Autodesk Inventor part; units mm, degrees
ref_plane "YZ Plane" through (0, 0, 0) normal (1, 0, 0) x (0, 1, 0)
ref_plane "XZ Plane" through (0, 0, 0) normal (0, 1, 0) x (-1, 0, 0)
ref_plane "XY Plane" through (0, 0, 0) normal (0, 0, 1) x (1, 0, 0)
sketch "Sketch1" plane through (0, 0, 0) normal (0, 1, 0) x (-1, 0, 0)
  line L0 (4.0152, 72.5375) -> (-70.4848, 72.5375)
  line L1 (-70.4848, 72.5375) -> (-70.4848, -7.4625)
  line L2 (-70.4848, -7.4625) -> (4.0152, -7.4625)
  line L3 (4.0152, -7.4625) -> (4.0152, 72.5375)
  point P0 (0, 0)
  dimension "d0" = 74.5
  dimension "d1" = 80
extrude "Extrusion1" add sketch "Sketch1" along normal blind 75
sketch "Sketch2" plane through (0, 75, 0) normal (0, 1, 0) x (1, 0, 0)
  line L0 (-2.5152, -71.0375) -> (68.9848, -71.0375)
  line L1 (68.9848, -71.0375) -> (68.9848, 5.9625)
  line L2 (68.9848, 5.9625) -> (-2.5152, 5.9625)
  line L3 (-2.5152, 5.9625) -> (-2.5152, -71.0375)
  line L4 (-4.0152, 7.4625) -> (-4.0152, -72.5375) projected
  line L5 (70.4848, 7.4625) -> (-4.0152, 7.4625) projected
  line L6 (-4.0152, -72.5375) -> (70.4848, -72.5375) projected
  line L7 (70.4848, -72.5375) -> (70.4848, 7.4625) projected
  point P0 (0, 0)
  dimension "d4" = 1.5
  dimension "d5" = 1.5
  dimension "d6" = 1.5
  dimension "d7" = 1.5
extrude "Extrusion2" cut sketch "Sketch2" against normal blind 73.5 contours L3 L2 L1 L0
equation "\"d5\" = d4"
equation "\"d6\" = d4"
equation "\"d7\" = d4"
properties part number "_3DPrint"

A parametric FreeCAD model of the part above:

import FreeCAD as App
import Part
import Sketcher
from FreeCAD import Vector
Q = App.Units.Quantity

doc = App.newDocument("Part")
body = doc.addObject("PartDesign::Body", "Body")

# Sketch on XZ plane
sketch1 = body.newObject("Sketcher::SketchObject", "Sketch")
sketch1.AttachmentSupport = (doc.getObject("XZ_Plane"), [""])
sketch1.MapMode = "FlatFace"
sketch1.addGeometry(Part.LineSegment(Vector(-4.0152, -7.4625, 0), Vector(-4.0152, 72.5375, 0)), False)
sketch1.addGeometry(Part.LineSegment(Vector(-4.0152, 72.5375, 0), Vector(70.4848, 72.5375, 0)), False)
sketch1.addGeometry(Part.LineSegment(Vector(70.4848, 72.5375, 0), Vector(70.4848, -7.4625, 0)), False)
sketch1.addGeometry(Part.LineSegment(Vector(70.4848, -7.4625, 0), Vector(-4.0152, -7.4625, 0)), False)
sketch1.addConstraint(Sketcher.Constraint("Coincident", 0, 2, 1, 1))
sketch1.addConstraint(Sketcher.Constraint("Coincident", 1, 2, 2, 1))
sketch1.addConstraint(Sketcher.Constraint("Coincident", 2, 2, 3, 1))
sketch1.addConstraint(Sketcher.Constraint("Coincident", 3, 2, 0, 1))
sketch1.addConstraint(Sketcher.Constraint("Vertical", 0))
sketch1.addConstraint(Sketcher.Constraint("Horizontal", 1))
sketch1.addConstraint(Sketcher.Constraint("Vertical", 2))
sketch1.addConstraint(Sketcher.Constraint("Horizontal", 3))
sketch1.addConstraint(Sketcher.Constraint("DistanceY", 0, 1, 0, 2, Q("80 mm")))
sketch1.addConstraint(Sketcher.Constraint("DistanceX", 1, 1, 1, 2, Q("74.5 mm")))
sketch1.addConstraint(Sketcher.Constraint("DistanceX", 0, 2, -1, 1, Q("4.0152 mm")))
sketch1.addConstraint(Sketcher.Constraint("DistanceY", -1, 1, 0, 2, Q("72.5375 mm")))
pad1 = body.newObject("PartDesign::Pad", "Pad")
pad1.Profile = sketch1
pad1.Length = 75
pad1.Reversed = True

# Sketch on XZ plane
sketch2 = body.newObject("Sketcher::SketchObject", "Sketch001")
sketch2.AttachmentSupport = (doc.getObject("XZ_Plane"), [""])
sketch2.MapMode = "FlatFace"
sketch2.AttachmentOffset = App.Placement(Vector(0, 0, -75), App.Rotation())
sketch2.addGeometry(Part.LineSegment(Vector(-2.5152, -5.9625, 0), Vector(-2.5152, 71.0375, 0)), False)
sketch2.addGeometry(Part.LineSegment(Vector(-2.5152, 71.0375, 0), Vector(68.9848, 71.0375, 0)), False)
sketch2.addGeometry(Part.LineSegment(Vector(68.9848, 71.0375, 0), Vector(68.9848, -5.9625, 0)), False)
sketch2.addGeometry(Part.LineSegment(Vector(68.9848, -5.9625, 0), Vector(-2.5152, -5.9625, 0)), False)
sketch2.addConstraint(Sketcher.Constraint("Coincident", 0, 2, 1, 1))
sketch2.addConstraint(Sketcher.Constraint("Coincident", 1, 2, 2, 1))
sketch2.addConstraint(Sketcher.Constraint("Coincident", 2, 2, 3, 1))
sketch2.addConstraint(Sketcher.Constraint("Coincident", 3, 2, 0, 1))
sketch2.addConstraint(Sketcher.Constraint("Vertical", 0))
sketch2.addConstraint(Sketcher.Constraint("Horizontal", 1))
sketch2.addConstraint(Sketcher.Constraint("Vertical", 2))
sketch2.addConstraint(Sketcher.Constraint("Horizontal", 3))
sketch2.addConstraint(Sketcher.Constraint("DistanceY", 0, 1, 0, 2, Q("77 mm")))
sketch2.addConstraint(Sketcher.Constraint("DistanceX", 1, 1, 1, 2, Q("71.5 mm")))
sketch2.addConstraint(Sketcher.Constraint("DistanceX", 0, 2, -1, 1, Q("2.5152 mm")))
sketch2.addConstraint(Sketcher.Constraint("DistanceY", -1, 1, 0, 2, Q("71.0375 mm")))
pocket1 = body.newObject("PartDesign::Pocket", "Pocket")
pocket1.Profile = sketch2
pocket1.Length = 73.5
pocket1.Reversed = True

doc.recompute()
